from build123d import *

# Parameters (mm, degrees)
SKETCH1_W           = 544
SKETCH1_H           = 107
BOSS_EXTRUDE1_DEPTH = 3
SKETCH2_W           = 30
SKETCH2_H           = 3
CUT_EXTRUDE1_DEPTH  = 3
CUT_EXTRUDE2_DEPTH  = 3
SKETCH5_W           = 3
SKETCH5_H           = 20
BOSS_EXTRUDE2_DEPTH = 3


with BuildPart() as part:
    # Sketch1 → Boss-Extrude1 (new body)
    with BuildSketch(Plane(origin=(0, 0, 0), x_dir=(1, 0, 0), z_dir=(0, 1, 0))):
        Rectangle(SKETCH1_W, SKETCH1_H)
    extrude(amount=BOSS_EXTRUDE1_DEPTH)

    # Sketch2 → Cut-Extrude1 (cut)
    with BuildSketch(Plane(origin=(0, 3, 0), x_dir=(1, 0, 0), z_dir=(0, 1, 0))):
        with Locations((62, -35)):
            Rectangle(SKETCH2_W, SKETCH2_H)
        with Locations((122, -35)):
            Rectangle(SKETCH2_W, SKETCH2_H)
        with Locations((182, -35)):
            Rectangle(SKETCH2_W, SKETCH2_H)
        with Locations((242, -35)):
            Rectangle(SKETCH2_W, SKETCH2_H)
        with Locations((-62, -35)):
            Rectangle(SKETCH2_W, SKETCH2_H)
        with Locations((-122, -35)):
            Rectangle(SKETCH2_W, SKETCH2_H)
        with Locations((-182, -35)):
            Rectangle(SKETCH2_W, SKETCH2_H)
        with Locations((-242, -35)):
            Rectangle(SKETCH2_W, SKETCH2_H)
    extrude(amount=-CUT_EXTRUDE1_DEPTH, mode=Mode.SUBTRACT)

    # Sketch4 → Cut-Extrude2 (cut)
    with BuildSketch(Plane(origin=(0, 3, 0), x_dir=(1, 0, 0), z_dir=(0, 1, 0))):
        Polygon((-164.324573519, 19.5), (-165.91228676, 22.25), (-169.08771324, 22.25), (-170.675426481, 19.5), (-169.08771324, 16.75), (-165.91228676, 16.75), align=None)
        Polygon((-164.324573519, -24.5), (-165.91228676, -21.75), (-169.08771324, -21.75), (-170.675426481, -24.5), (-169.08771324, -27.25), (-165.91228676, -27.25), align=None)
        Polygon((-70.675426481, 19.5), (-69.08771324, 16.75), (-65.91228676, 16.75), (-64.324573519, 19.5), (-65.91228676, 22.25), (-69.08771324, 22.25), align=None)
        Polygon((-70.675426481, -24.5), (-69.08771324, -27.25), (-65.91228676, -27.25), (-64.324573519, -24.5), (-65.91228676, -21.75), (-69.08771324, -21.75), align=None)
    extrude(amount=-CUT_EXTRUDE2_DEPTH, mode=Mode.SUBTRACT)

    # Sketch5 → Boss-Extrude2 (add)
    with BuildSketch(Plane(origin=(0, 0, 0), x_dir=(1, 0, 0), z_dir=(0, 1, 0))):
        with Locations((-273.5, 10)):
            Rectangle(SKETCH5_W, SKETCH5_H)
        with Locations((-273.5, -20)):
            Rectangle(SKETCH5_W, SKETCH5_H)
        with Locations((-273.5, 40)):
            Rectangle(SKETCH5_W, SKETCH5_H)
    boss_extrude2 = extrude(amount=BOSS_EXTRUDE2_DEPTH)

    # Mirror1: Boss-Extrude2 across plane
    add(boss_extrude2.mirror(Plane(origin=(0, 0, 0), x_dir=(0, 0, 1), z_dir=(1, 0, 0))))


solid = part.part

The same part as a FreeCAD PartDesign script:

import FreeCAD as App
import Part
import Sketcher

V = App.Vector
Q = App.Units.Quantity


def add_polygon(sketch, points):
    """Adds a closed chain of lines whose ends are joined by coincident constraints."""
    first, n = sketch.GeometryCount, len(points)
    for a, b in zip(points, points[1:] + points[:1]):
        sketch.addGeometry(Part.LineSegment(App.Vector(*a, 0), App.Vector(*b, 0)), False)
    for i in range(n):
        sketch.addConstraint(Sketcher.Constraint("Coincident", first + i, 2, first + (i + 1) % n, 1))

doc = App.newDocument("Part")
params = doc.addObject("Spreadsheet::Sheet", "Params")
for row, (alias, value) in enumerate([
    ("sketch1_width", "544 mm"),
    ("sketch1_height", "107 mm"),
    ("pad1_length", "3 mm"),
    ("sketch2_width", "30 mm"),
    ("sketch2_height", "3 mm"),
    ("pocket1_length", "3 mm"),
    ("pocket2_length", "3 mm"),
    ("sketch4_width", "3 mm"),
    ("sketch4_height", "20 mm"),
    ("pad2_length", "3 mm"),
], start=1):
    params.set(f"A{row}", alias)
    params.set(f"B{row}", "=" + value)
    params.setAlias(f"B{row}", alias)

body = doc.addObject("PartDesign::Body", "Body")

sketch1 = body.newObject("Sketcher::SketchObject", "Sketch")
sketch1.AttachmentSupport = (doc.getObject("XZ_Plane"), [""])
sketch1.MapMode = "FlatFace"
add_polygon(sketch1, [(-272, -53.5), (-272, 53.5), (272, 53.5), (272, -53.5)])
sketch1.addConstraint([
    Sketcher.Constraint("Vertical", 0),
    Sketcher.Constraint("Horizontal", 1),
    Sketcher.Constraint("Vertical", 2),
    Sketcher.Constraint("Horizontal", 3),
    Sketcher.Constraint("Symmetric", 0, 2, 2, 2, -1, 1),
    Sketcher.Constraint("DistanceX", 1, 1, 1, 2, Q("544 mm")),
    Sketcher.Constraint("DistanceY", 0, 1, 0, 2, Q("107 mm")),
])
sketch1.setExpression("Constraints[9]", "Params.sketch1_width")
sketch1.setExpression("Constraints[10]", "Params.sketch1_height")
pad1 = body.newObject("PartDesign::Pad", "Pad")
pad1.Profile = sketch1
pad1.setExpression("Length", "Params.pad1_length")
pad1.Reversed = True

sketch2 = body.newObject("Sketcher::SketchObject", "Sketch001")
sketch2.AttachmentSupport = (doc.getObject("XZ_Plane"), [""])
sketch2.MapMode = "FlatFace"
sketch2.AttachmentOffset = App.Placement(V(0, 0, -3), App.Rotation())
add_polygon(sketch2, [(47, 33.5), (47, 36.5), (77, 36.5), (77, 33.5)])
add_polygon(sketch2, [(107, 33.5), (107, 36.5), (137, 36.5), (137, 33.5)])
add_polygon(sketch2, [(167, 33.5), (167, 36.5), (197, 36.5), (197, 33.5)])
add_polygon(sketch2, [(227, 33.5), (227, 36.5), (257, 36.5), (257, 33.5)])
add_polygon(sketch2, [(-77, 33.5), (-77, 36.5), (-47, 36.5), (-47, 33.5)])
add_polygon(sketch2, [(-137, 33.5), (-137, 36.5), (-107, 36.5), (-107, 33.5)])
add_polygon(sketch2, [(-197, 33.5), (-197, 36.5), (-167, 36.5), (-167, 33.5)])
add_polygon(sketch2, [(-257, 33.5), (-257, 36.5), (-227, 36.5), (-227, 33.5)])
sketch2.addConstraint([
    Sketcher.Constraint("Vertical", 0),
    Sketcher.Constraint("Horizontal", 1),
    Sketcher.Constraint("Vertical", 2),
    Sketcher.Constraint("Horizontal", 3),
    Sketcher.Constraint("Vertical", 4),
    Sketcher.Constraint("Horizontal", 5),
    Sketcher.Constraint("Vertical", 6),
    Sketcher.Constraint("Horizontal", 7),
    Sketcher.Constraint("Vertical", 8),
    Sketcher.Constraint("Horizontal", 9),
    Sketcher.Constraint("Vertical", 10),
    Sketcher.Constraint("Horizontal", 11),
    Sketcher.Constraint("Vertical", 12),
    Sketcher.Constraint("Horizontal", 13),
    Sketcher.Constraint("Vertical", 14),
    Sketcher.Constraint("Horizontal", 15),
    Sketcher.Constraint("Vertical", 16),
    Sketcher.Constraint("Horizontal", 17),
    Sketcher.Constraint("Vertical", 18),
    Sketcher.Constraint("Horizontal", 19),
    Sketcher.Constraint("Vertical", 20),
    Sketcher.Constraint("Horizontal", 21),
    Sketcher.Constraint("Vertical", 22),
    Sketcher.Constraint("Horizontal", 23),
    Sketcher.Constraint("Vertical", 24),
    Sketcher.Constraint("Horizontal", 25),
    Sketcher.Constraint("Vertical", 26),
    Sketcher.Constraint("Horizontal", 27),
    Sketcher.Constraint("Vertical", 28),
    Sketcher.Constraint("Horizontal", 29),
    Sketcher.Constraint("Vertical", 30),
    Sketcher.Constraint("Horizontal", 31),
    Sketcher.Constraint("Symmetric", 1, 2, 16, 2, -2),
    Sketcher.Constraint("Symmetric", 3, 2, 18, 2, -2),
    Sketcher.Constraint("Symmetric", 5, 2, 20, 2, -2),
    Sketcher.Constraint("Symmetric", 7, 2, 22, 2, -2),
    Sketcher.Constraint("Symmetric", 9, 2, 24, 2, -2),
    Sketcher.Constraint("Symmetric", 11, 2, 26, 2, -2),
    Sketcher.Constraint("Symmetric", 13, 2, 28, 2, -2),
    Sketcher.Constraint("Symmetric", 15, 2, 30, 2, -2),
    Sketcher.Constraint("Horizontal", 1, 2, 4, 2),
    Sketcher.Constraint("Horizontal", 3, 2, 6, 2),
    Sketcher.Constraint("Horizontal", 5, 2, 8, 2),
    Sketcher.Constraint("Horizontal", 7, 2, 10, 2),
    Sketcher.Constraint("Horizontal", 9, 2, 12, 2),
    Sketcher.Constraint("Horizontal", 11, 2, 14, 2),
    Sketcher.Constraint("Equal", 3, 5),
    Sketcher.Constraint("Equal", 7, 9),
    Sketcher.Constraint("Equal", 11, 13),
    Sketcher.Constraint("DistanceX", 1, 1, 1, 2, Q("30 mm")),
    Sketcher.Constraint("DistanceY", 0, 1, 0, 2, Q("3 mm")),
    Sketcher.Constraint("DistanceX", -1, 1, 0, 2, Q("47 mm")),
    Sketcher.Constraint("DistanceX", -1, 1, 4, 2, Q("107 mm")),
    Sketcher.Constraint("DistanceX", -1, 1, 8, 2, Q("167 mm")),
    Sketcher.Constraint("DistanceX", -1, 1, 12, 2, Q("227 mm")),
    Sketcher.Constraint("DistanceY", -1, 1, 0, 2, Q("36.5 mm")),
])
sketch2.setExpression("Constraints[81]", "Params.sketch2_width")
sketch2.setExpression("Constraints[82]", "Params.sketch2_height")
pocket1 = body.newObject("PartDesign::Pocket", "Pocket")
pocket1.Profile = sketch2
pocket1.setExpression("Length", "Params.pocket1_length")
pocket1.Reversed = True

sketch3 = body.newObject("Sketcher::SketchObject", "Sketch002")
sketch3.AttachmentSupport = (doc.getObject("XZ_Plane"), [""])
sketch3.MapMode = "FlatFace"
sketch3.AttachmentOffset = App.Placement(V(0, 0, -3), App.Rotation())
add_polygon(sketch3, [(-164.324574, -19.5), (-165.912287, -22.25), (-169.087713, -22.25), (-170.675426, -19.5), (-169.087713, -16.75), (-165.912287, -16.75)])
add_polygon(sketch3, [(-164.324574, 24.5), (-165.912287, 21.75), (-169.087713, 21.75), (-170.675426, 24.5), (-169.087713, 27.25), (-165.912287, 27.25)])
add_polygon(sketch3, [(-70.675426, -19.5), (-69.087713, -16.75), (-65.912287, -16.75), (-64.324574, -19.5), (-65.912287, -22.25), (-69.087713, -22.25)])
add_polygon(sketch3, [(-70.675426, 24.5), (-69.087713, 27.25), (-65.912287, 27.25), (-64.324574, 24.5), (-65.912287, 21.75), (-69.087713, 21.75)])
sketch3.addConstraint([
    Sketcher.Constraint("Horizontal", 1),
    Sketcher.Constraint("Horizontal", 4),
    Sketcher.Constraint("Horizontal", 7),
    Sketcher.Constraint("Horizontal", 10),
    Sketcher.Constraint("Horizontal", 13),
    Sketcher.Constraint("Horizontal", 16),
    Sketcher.Constraint("Horizontal", 19),
    Sketcher.Constraint("Horizontal", 22),
    Sketcher.Constraint("Parallel", 0, 3),
    Sketcher.Constraint("Parallel", 2, 5),
    Sketcher.Constraint("Parallel", 3, 6),
    Sketcher.Constraint("Parallel", 5, 8),
    Sketcher.Constraint("Parallel", 6, 9),
    Sketcher.Constraint("Parallel", 8, 11),
    Sketcher.Constraint("Parallel", 9, 12),
    Sketcher.Constraint("Parallel", 11, 14),
    Sketcher.Constraint("Parallel", 12, 15),
    Sketcher.Constraint("Parallel", 14, 17),
    Sketcher.Constraint("Parallel", 15, 18),
    Sketcher.Constraint("Parallel", 17, 20),
    Sketcher.Constraint("Parallel", 18, 21),
    Sketcher.Constraint("Parallel", 20, 23),
    Sketcher.Constraint("Horizontal", 2, 2, 5, 2),
    Sketcher.Constraint("Horizontal", 8, 2, 11, 2),
    Sketcher.Constraint("Horizontal", 4, 2, 12, 2),
    Sketcher.Constraint("Horizontal", 5, 2, 14, 2),
    Sketcher.Constraint("Horizontal", 1, 2, 15, 2),
    Sketcher.Constraint("Horizontal", 14, 2, 17, 2),
    Sketcher.Constraint("Horizontal", 10, 2, 18, 2),
    Sketcher.Constraint("Horizontal", 11, 2, 20, 2),
    Sketcher.Constraint("Horizontal", 7, 2, 21, 2),
    Sketcher.Constraint("Horizontal", 20, 2, 23, 2),
    Sketcher.Constraint("Vertical", 1, 2, 3, 2),
    Sketcher.Constraint("Vertical", 0, 2, 4, 2),
    Sketcher.Constraint("Vertical", 4, 2, 6, 2),
    Sketcher.Constraint("Vertical", 3, 2, 7, 2),
    Sketcher.Constraint("Vertical", 2, 2, 8, 2),
    Sketcher.Constraint("Vertical", 7, 2, 9, 2),
    Sketcher.Constraint("Vertical", 16, 2, 18, 2),
    Sketcher.Constraint("Vertical", 15, 2, 19, 2),
    Sketcher.Constraint("Equal", 10, 13),
    Sketcher.Constraint("Angle", 0, Q("-120 deg")),
    Sketcher.Constraint("DistanceY", 0, 2, 6, 2, Q("44 mm")),
    Sketcher.Constraint("DistanceX", 3, 2, 12, 2, Q("100 mm")),
    Sketcher.Constraint("DistanceY", 2, 2, -1, 1, Q("19.5 mm")),
    Sketcher.Constraint("DistanceY", 1, 2, 3, 2, Q("5.5 mm")),
    Sketcher.Constraint("DistanceX", 1, 2, 1, 1, Q("3.175426 mm")),
    Sketcher.Constraint("DistanceX", 0, 2, -1, 1, Q("165.912287 mm")),
])
pocket2 = body.newObject("PartDesign::Pocket", "Pocket001")
pocket2.Profile = sketch3
pocket2.setExpression("Length", "Params.pocket2_length")
pocket2.Reversed = True

sketch4 = body.newObject("Sketcher::SketchObject", "Sketch003")
sketch4.AttachmentSupport = (doc.getObject("XZ_Plane"), [""])
sketch4.MapMode = "FlatFace"
add_polygon(sketch4, [(-275, -20), (-275, 0), (-272, 0), (-272, -20)])
add_polygon(sketch4, [(-275, 10), (-275, 30), (-272, 30), (-272, 10)])
add_polygon(sketch4, [(-275, -50), (-275, -30), (-272, -30), (-272, -50)])
sketch4.addConstraint([
    Sketcher.Constraint("Vertical", 0),
    Sketcher.Constraint("Horizontal", 1),
    Sketcher.Constraint("Vertical", 2),
    Sketcher.Constraint("Horizontal", 3),
    Sketcher.Constraint("Vertical", 4),
    Sketcher.Constraint("Horizontal", 5),
    Sketcher.Constraint("Vertical", 6),
    Sketcher.Constraint("Horizontal", 7),
    Sketcher.Constraint("Vertical", 8),
    Sketcher.Constraint("Horizontal", 9),
    Sketcher.Constraint("Vertical", 10),
    Sketcher.Constraint("Horizontal", 11),
    Sketcher.Constraint("Symmetric", 4, 2, 8, 2, -1),
    Sketcher.Constraint("PointOnObject", 0, 2, -1),
    Sketcher.Constraint("Vertical", 3, 2, 4, 2),
    Sketcher.Constraint("Vertical", 2, 2, 5, 2),
    Sketcher.Constraint("Vertical", 6, 2, 9, 2),
    Sketcher.Constraint("Equal", 2, 4),
    Sketcher.Constraint("Equal", 6, 8),
    Sketcher.Constraint("DistanceX", 1, 1, 1, 2, Q("3 mm")),
    Sketcher.Constraint("DistanceY", 0, 1, 0, 2, Q("20 mm")),
    Sketcher.Constraint("DistanceX", 0, 2, -1, 1, Q("275 mm")),
    Sketcher.Constraint("DistanceY", -1, 1, 4, 2, Q("30 mm")),
])
sketch4.setExpression("Constraints[31]", "Params.sketch4_width")
sketch4.setExpression("Constraints[32]", "Params.sketch4_height")
pad2 = body.newObject("PartDesign::Pad", "Pad001")
pad2.Profile = sketch4
pad2.setExpression("Length", "Params.pad2_length")
pad2.Reversed = True
doc.recompute()

mirrored = body.newObject("PartDesign::Mirrored", "Mirrored")
mirrored.Originals = [pad2]
mirrored.MirrorPlane = (doc.getObject("YZ_Plane"), [""])
body.Tip = mirrored

doc.recompute()
